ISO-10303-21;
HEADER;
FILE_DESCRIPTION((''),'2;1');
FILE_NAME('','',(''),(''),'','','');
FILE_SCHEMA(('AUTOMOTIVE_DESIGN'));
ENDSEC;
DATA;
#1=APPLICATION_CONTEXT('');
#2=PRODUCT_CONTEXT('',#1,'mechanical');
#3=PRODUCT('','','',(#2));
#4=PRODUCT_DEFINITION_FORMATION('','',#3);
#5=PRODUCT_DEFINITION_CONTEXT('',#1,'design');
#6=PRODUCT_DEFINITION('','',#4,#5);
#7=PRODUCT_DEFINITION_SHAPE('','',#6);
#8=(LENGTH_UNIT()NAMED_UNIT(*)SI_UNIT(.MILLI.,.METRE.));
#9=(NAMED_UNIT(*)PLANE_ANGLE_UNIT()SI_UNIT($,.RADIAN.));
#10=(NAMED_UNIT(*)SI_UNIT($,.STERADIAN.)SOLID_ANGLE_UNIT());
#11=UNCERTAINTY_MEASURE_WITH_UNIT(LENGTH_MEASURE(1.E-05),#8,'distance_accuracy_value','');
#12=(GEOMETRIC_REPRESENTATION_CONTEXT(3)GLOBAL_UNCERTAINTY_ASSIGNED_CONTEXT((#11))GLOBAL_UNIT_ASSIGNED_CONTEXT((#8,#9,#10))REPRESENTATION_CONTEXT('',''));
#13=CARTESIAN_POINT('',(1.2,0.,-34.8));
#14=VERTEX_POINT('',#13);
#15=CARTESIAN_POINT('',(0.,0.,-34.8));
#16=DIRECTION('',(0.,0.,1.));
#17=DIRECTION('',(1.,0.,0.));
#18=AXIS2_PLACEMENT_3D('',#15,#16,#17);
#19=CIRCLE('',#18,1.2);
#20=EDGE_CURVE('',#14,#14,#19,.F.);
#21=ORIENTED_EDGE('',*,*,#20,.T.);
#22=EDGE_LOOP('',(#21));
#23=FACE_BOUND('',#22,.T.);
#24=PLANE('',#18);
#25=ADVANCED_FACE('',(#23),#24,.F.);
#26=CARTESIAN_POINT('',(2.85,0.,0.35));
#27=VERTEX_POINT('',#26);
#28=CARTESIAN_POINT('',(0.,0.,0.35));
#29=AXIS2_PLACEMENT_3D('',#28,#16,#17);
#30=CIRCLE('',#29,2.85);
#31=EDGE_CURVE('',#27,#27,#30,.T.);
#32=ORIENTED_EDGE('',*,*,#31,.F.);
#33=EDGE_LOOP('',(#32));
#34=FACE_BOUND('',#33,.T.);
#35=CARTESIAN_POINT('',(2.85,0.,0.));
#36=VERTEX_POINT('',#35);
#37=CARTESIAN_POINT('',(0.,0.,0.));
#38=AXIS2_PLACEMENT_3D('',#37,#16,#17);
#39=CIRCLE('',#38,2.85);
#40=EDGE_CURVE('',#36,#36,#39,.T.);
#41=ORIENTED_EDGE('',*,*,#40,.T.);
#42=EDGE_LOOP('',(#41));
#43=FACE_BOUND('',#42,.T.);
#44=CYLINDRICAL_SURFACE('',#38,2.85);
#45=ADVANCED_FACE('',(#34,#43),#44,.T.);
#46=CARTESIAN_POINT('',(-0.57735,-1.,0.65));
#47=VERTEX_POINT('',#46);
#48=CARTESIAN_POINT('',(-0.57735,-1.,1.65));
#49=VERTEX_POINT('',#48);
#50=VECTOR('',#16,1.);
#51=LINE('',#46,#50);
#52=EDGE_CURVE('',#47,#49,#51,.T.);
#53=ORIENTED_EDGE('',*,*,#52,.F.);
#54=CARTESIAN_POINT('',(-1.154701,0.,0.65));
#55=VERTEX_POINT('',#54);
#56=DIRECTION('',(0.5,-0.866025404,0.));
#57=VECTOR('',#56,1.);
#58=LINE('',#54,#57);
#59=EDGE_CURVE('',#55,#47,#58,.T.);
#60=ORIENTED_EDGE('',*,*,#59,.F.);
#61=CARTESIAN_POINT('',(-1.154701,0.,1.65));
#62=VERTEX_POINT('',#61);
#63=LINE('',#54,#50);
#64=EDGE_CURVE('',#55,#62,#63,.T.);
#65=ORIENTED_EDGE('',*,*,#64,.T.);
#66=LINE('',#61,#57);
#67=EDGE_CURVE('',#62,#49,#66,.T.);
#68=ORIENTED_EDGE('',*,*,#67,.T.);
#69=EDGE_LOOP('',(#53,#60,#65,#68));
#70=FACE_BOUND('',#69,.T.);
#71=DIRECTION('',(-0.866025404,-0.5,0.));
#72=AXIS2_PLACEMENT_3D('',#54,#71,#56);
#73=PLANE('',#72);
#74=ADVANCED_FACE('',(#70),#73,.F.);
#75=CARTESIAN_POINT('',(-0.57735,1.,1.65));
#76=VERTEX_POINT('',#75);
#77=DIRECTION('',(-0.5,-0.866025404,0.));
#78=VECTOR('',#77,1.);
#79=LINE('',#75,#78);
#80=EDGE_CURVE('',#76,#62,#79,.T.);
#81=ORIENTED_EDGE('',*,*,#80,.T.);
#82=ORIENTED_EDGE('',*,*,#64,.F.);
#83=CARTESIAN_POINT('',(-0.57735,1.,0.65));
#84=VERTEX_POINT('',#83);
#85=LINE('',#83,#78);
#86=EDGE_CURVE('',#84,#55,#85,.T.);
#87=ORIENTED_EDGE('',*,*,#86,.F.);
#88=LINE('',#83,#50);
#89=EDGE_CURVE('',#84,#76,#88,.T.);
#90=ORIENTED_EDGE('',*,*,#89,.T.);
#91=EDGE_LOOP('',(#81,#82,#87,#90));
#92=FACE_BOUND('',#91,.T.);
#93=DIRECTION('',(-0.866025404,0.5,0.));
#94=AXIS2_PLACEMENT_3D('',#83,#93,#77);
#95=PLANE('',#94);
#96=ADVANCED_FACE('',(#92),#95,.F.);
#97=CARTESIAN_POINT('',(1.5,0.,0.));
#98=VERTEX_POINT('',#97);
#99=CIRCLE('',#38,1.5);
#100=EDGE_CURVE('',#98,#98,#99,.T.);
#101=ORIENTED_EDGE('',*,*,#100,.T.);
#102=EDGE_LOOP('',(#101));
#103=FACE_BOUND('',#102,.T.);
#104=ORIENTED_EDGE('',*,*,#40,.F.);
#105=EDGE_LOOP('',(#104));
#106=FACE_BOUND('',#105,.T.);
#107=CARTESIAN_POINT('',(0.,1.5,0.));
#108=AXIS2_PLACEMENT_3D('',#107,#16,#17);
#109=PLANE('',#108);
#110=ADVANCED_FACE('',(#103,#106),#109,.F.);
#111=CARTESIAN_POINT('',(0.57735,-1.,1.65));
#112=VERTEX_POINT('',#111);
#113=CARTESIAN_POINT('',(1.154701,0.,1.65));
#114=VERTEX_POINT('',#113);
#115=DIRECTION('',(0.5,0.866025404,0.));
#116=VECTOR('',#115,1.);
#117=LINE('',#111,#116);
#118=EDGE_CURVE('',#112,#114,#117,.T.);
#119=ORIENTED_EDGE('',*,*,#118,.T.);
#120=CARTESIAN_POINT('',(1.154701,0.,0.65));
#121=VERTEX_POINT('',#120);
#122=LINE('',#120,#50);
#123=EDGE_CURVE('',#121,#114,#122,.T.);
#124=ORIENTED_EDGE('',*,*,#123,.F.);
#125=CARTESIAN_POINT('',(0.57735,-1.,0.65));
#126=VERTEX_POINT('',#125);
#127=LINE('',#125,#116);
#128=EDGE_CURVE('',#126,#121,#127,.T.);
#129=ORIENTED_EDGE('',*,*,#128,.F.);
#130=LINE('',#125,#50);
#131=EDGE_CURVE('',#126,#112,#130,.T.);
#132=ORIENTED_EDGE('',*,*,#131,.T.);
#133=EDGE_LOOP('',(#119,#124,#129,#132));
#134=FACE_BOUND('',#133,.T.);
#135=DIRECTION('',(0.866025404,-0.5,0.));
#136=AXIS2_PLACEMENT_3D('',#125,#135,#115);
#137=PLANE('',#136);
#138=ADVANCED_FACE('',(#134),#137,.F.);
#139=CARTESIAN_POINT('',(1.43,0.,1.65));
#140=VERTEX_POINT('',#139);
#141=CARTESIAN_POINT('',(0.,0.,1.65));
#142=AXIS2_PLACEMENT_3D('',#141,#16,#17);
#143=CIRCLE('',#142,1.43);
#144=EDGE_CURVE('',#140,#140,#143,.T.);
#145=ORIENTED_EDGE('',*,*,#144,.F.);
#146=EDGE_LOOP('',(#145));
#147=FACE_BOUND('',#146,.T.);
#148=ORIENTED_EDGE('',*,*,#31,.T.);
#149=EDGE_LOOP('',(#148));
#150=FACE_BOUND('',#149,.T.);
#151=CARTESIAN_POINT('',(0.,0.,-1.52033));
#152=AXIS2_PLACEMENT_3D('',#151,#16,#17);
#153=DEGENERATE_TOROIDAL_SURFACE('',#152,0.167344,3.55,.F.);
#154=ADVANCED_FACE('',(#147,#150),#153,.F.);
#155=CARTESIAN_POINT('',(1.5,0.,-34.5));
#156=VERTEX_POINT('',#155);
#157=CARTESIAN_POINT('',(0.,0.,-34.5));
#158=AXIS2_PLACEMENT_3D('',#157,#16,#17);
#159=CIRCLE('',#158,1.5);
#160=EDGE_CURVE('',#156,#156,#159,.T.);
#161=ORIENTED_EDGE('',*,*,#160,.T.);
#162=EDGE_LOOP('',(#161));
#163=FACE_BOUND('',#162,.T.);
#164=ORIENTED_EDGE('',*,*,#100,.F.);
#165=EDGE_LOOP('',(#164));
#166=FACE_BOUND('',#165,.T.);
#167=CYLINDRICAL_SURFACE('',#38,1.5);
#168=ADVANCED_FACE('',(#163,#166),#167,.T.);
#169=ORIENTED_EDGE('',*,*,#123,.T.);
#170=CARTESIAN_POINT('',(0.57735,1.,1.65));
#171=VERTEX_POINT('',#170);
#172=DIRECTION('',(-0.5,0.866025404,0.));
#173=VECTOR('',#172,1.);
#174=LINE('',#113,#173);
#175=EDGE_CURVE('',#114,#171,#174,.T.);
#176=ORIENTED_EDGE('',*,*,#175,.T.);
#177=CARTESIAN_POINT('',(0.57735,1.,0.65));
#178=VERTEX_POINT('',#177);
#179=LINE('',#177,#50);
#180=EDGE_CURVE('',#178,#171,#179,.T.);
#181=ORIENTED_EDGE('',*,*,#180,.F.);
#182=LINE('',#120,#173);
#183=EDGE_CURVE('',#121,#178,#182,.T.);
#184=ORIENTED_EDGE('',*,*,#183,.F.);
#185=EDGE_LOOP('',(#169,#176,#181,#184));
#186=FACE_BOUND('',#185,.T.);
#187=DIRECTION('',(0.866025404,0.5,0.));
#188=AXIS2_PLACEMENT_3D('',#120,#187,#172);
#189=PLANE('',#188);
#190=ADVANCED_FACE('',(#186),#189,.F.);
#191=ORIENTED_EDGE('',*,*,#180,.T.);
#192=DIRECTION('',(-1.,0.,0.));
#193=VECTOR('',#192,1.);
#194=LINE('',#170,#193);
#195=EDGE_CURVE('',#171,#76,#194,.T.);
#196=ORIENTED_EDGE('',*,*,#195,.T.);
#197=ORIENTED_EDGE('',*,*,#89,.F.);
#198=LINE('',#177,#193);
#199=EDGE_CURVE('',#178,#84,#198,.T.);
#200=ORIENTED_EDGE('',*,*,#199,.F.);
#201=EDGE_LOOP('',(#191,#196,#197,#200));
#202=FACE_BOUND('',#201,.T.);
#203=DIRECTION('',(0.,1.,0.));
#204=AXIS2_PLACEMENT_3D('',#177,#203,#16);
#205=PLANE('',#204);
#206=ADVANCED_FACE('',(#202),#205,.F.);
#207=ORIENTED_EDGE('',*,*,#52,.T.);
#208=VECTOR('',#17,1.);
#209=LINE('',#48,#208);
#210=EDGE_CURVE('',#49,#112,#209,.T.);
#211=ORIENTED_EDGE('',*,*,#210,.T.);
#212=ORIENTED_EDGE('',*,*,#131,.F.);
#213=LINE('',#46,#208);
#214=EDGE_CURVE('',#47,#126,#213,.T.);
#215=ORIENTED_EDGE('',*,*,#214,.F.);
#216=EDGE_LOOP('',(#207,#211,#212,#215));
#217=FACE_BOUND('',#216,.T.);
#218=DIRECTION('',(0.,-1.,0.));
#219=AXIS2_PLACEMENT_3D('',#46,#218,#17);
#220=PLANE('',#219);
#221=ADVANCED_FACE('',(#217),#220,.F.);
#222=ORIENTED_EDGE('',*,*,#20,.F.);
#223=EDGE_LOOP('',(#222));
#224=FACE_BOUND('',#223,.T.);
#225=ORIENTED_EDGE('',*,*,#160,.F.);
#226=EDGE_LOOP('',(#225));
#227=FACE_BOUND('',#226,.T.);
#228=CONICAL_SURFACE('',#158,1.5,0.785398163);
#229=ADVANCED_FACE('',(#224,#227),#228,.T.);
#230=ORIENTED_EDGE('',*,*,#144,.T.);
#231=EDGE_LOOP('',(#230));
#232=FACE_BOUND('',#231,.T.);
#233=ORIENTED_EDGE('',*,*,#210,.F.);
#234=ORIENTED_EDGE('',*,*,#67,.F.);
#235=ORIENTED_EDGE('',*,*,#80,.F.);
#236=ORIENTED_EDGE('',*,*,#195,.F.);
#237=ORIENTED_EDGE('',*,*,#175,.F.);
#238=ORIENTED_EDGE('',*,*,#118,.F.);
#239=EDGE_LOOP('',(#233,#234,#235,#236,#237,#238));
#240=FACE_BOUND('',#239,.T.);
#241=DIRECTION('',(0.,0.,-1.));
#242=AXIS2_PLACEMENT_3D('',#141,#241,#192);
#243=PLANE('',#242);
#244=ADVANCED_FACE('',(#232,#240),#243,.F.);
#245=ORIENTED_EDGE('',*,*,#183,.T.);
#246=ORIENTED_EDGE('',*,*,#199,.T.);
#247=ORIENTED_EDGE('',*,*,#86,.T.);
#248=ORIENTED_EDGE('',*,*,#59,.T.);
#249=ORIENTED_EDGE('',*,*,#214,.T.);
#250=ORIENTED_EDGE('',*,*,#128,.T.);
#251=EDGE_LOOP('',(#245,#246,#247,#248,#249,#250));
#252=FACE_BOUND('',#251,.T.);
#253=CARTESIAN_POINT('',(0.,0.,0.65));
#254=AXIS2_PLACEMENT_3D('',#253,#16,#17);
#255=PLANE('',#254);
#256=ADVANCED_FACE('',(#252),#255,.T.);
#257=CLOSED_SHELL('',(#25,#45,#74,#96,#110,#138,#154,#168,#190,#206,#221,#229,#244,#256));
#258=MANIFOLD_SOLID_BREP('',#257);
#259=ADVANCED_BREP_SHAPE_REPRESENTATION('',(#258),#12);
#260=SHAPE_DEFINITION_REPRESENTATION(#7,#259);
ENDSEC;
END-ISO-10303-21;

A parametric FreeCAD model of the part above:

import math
import FreeCAD as App
import Part
import Sketcher
from FreeCAD import Vector
Q = App.Units.Quantity


def edges_at(feature, points):
    """Names of the edges that pass closest to the given points."""
    edges = feature.Shape.Edges
    near = lambda p: min(range(len(edges)), key=lambda i: edges[i].distToShape(Part.Vertex(*p))[0])
    return sorted({f"Edge{near(p) + 1}" for p in points})

doc = App.newDocument("Part")
body = doc.addObject("PartDesign::Body", "Body")

# Sketch on YZ plane
sketch1 = body.newObject("Sketcher::SketchObject", "Sketch")
sketch1.AttachmentSupport = (doc.getObject("YZ_Plane"), [""])
sketch1.MapMode = "FlatFace"
sketch1.addGeometry(Part.LineSegment(Vector(1.5, 0, 0), Vector(2.85, 0, 0)), False)
sketch1.addGeometry(Part.LineSegment(Vector(2.85, 0, 0), Vector(2.85, 0.35, 0)), False)
sketch1.addGeometry(Part.ArcOfCircle(Part.Circle(Vector(-0.17, -1.52, 0), Vector(0, 0, 1), 3.55), math.radians(32), math.radians(63)), False)
sketch1.addGeometry(Part.LineSegment(Vector(1.43, 1.65, 0), Vector(0, 1.65, 0)), False)
sketch1.addGeometry(Part.LineSegment(Vector(0, 1.65, 0), Vector(0, -34.8, 0)), False)
sketch1.addGeometry(Part.LineSegment(Vector(0, -34.8, 0), Vector(1.5, -34.8, 0)), False)
sketch1.addGeometry(Part.LineSegment(Vector(1.5, -34.8, 0), Vector(1.5, 0, 0)), False)
sketch1.addConstraint(Sketcher.Constraint("Coincident", 0, 2, 1, 1))
sketch1.addConstraint(Sketcher.Constraint("Coincident", 1, 2, 2, 1))
sketch1.addConstraint(Sketcher.Constraint("Coincident", 2, 2, 3, 1))
sketch1.addConstraint(Sketcher.Constraint("Coincident", 3, 2, 4, 1))
sketch1.addConstraint(Sketcher.Constraint("Coincident", 4, 2, 5, 1))
sketch1.addConstraint(Sketcher.Constraint("Coincident", 5, 2, 6, 1))
sketch1.addConstraint(Sketcher.Constraint("Coincident", 6, 2, 0, 1))
sketch1.addConstraint(Sketcher.Constraint("Horizontal", 0))
sketch1.addConstraint(Sketcher.Constraint("Vertical", 1))
sketch1.addConstraint(Sketcher.Constraint("Horizontal", 3))
sketch1.addConstraint(Sketcher.Constraint("Vertical", 4))
sketch1.addConstraint(Sketcher.Constraint("Horizontal", 5))
sketch1.addConstraint(Sketcher.Constraint("Vertical", 6))
sketch1.addConstraint(Sketcher.Constraint("PointOnObject", 0, 2, -1))
sketch1.addConstraint(Sketcher.Constraint("PointOnObject", 3, 2, -2))
sketch1.addConstraint(Sketcher.Constraint("Radius", 2, Q("3.55 mm")))
sketch1.addConstraint(Sketcher.Constraint("DistanceX", 5, 1, 5, 2, Q("1.5 mm")))
sketch1.addConstraint(Sketcher.Constraint("DistanceY", 6, 1, 6, 2, Q("34.8 mm")))
sketch1.addConstraint(Sketcher.Constraint("DistanceX", 0, 1, 0, 2, Q("1.35 mm")))
sketch1.addConstraint(Sketcher.Constraint("DistanceX", 3, 2, 3, 1, Q("1.43 mm")))
sketch1.addConstraint(Sketcher.Constraint("DistanceY", 1, 1, 1, 2, Q("0.35 mm")))
sketch1.addConstraint(Sketcher.Constraint("DistanceY", 4, 2, 4, 1, Q("36.45 mm")))
revolution = body.newObject("PartDesign::Revolution", "Revolution")
revolution.Profile = sketch1
revolution.ReferenceAxis = (sketch1, ["V_Axis"])
revolution.Angle = 360

# Sketch on XY plane
sketch2 = body.newObject("Sketcher::SketchObject", "Sketch001")
sketch2.AttachmentSupport = (doc.getObject("XY_Plane"), [""])
sketch2.MapMode = "FlatFace"
sketch2.AttachmentOffset = App.Placement(Vector(0, 0, 1.65), App.Rotation())
sketch2.addGeometry(Part.LineSegment(Vector(-0.6, 1, 0), Vector(-1.2, 0, 0)), False)
sketch2.addGeometry(Part.LineSegment(Vector(-1.2, 0, 0), Vector(-0.6, -1, 0)), False)
sketch2.addGeometry(Part.LineSegment(Vector(-0.6, -1, 0), Vector(0.6, -1, 0)), False)
sketch2.addGeometry(Part.LineSegment(Vector(0.6, -1, 0), Vector(1.2, 0, 0)), False)
sketch2.addGeometry(Part.LineSegment(Vector(1.2, 0, 0), Vector(0.6, 1, 0)), False)
sketch2.addGeometry(Part.LineSegment(Vector(0.6, 1, 0), Vector(-0.6, 1, 0)), False)
sketch2.addConstraint(Sketcher.Constraint("Coincident", 0, 2, 1, 1))
sketch2.addConstraint(Sketcher.Constraint("Coincident", 1, 2, 2, 1))
sketch2.addConstraint(Sketcher.Constraint("Coincident", 2, 2, 3, 1))
sketch2.addConstraint(Sketcher.Constraint("Coincident", 3, 2, 4, 1))
sketch2.addConstraint(Sketcher.Constraint("Coincident", 4, 2, 5, 1))
sketch2.addConstraint(Sketcher.Constraint("Coincident", 5, 2, 0, 1))
sketch2.addConstraint(Sketcher.Constraint("Horizontal", 2))
sketch2.addConstraint(Sketcher.Constraint("Horizontal", 5))
sketch2.addConstraint(Sketcher.Constraint("Symmetric", 0, 2, 3, 2, -1, 1))
sketch2.addConstraint(Sketcher.Constraint("Symmetric", 1, 2, 4, 2, -1, 1))
sketch2.addConstraint(Sketcher.Constraint("PointOnObject", 0, 2, -1))
sketch2.addConstraint(Sketcher.Constraint("Parallel", 0, 3))
sketch2.addConstraint(Sketcher.Constraint("Vertical", 2, 2, 4, 2))
sketch2.addConstraint(Sketcher.Constraint("Angle", 0, Q("-120 deg")))
sketch2.addConstraint(Sketcher.Constraint("DistanceY", 1, 2, -1, 1, Q("1 mm")))
sketch2.addConstraint(Sketcher.Constraint("DistanceX", 2, 1, 2, 2, Q("1.154701 mm")))
pocket1 = body.newObject("PartDesign::Pocket", "Pocket")
pocket1.Profile = sketch2
pocket1.Length = 1
doc.recompute()

chamfer = body.newObject("PartDesign::Chamfer", "Chamfer")
chamfer.Base = (pocket1, edges_at(pocket1, [(-1.5, 0, -34.8)]))
chamfer.Size = 0.3

doc.recompute()
